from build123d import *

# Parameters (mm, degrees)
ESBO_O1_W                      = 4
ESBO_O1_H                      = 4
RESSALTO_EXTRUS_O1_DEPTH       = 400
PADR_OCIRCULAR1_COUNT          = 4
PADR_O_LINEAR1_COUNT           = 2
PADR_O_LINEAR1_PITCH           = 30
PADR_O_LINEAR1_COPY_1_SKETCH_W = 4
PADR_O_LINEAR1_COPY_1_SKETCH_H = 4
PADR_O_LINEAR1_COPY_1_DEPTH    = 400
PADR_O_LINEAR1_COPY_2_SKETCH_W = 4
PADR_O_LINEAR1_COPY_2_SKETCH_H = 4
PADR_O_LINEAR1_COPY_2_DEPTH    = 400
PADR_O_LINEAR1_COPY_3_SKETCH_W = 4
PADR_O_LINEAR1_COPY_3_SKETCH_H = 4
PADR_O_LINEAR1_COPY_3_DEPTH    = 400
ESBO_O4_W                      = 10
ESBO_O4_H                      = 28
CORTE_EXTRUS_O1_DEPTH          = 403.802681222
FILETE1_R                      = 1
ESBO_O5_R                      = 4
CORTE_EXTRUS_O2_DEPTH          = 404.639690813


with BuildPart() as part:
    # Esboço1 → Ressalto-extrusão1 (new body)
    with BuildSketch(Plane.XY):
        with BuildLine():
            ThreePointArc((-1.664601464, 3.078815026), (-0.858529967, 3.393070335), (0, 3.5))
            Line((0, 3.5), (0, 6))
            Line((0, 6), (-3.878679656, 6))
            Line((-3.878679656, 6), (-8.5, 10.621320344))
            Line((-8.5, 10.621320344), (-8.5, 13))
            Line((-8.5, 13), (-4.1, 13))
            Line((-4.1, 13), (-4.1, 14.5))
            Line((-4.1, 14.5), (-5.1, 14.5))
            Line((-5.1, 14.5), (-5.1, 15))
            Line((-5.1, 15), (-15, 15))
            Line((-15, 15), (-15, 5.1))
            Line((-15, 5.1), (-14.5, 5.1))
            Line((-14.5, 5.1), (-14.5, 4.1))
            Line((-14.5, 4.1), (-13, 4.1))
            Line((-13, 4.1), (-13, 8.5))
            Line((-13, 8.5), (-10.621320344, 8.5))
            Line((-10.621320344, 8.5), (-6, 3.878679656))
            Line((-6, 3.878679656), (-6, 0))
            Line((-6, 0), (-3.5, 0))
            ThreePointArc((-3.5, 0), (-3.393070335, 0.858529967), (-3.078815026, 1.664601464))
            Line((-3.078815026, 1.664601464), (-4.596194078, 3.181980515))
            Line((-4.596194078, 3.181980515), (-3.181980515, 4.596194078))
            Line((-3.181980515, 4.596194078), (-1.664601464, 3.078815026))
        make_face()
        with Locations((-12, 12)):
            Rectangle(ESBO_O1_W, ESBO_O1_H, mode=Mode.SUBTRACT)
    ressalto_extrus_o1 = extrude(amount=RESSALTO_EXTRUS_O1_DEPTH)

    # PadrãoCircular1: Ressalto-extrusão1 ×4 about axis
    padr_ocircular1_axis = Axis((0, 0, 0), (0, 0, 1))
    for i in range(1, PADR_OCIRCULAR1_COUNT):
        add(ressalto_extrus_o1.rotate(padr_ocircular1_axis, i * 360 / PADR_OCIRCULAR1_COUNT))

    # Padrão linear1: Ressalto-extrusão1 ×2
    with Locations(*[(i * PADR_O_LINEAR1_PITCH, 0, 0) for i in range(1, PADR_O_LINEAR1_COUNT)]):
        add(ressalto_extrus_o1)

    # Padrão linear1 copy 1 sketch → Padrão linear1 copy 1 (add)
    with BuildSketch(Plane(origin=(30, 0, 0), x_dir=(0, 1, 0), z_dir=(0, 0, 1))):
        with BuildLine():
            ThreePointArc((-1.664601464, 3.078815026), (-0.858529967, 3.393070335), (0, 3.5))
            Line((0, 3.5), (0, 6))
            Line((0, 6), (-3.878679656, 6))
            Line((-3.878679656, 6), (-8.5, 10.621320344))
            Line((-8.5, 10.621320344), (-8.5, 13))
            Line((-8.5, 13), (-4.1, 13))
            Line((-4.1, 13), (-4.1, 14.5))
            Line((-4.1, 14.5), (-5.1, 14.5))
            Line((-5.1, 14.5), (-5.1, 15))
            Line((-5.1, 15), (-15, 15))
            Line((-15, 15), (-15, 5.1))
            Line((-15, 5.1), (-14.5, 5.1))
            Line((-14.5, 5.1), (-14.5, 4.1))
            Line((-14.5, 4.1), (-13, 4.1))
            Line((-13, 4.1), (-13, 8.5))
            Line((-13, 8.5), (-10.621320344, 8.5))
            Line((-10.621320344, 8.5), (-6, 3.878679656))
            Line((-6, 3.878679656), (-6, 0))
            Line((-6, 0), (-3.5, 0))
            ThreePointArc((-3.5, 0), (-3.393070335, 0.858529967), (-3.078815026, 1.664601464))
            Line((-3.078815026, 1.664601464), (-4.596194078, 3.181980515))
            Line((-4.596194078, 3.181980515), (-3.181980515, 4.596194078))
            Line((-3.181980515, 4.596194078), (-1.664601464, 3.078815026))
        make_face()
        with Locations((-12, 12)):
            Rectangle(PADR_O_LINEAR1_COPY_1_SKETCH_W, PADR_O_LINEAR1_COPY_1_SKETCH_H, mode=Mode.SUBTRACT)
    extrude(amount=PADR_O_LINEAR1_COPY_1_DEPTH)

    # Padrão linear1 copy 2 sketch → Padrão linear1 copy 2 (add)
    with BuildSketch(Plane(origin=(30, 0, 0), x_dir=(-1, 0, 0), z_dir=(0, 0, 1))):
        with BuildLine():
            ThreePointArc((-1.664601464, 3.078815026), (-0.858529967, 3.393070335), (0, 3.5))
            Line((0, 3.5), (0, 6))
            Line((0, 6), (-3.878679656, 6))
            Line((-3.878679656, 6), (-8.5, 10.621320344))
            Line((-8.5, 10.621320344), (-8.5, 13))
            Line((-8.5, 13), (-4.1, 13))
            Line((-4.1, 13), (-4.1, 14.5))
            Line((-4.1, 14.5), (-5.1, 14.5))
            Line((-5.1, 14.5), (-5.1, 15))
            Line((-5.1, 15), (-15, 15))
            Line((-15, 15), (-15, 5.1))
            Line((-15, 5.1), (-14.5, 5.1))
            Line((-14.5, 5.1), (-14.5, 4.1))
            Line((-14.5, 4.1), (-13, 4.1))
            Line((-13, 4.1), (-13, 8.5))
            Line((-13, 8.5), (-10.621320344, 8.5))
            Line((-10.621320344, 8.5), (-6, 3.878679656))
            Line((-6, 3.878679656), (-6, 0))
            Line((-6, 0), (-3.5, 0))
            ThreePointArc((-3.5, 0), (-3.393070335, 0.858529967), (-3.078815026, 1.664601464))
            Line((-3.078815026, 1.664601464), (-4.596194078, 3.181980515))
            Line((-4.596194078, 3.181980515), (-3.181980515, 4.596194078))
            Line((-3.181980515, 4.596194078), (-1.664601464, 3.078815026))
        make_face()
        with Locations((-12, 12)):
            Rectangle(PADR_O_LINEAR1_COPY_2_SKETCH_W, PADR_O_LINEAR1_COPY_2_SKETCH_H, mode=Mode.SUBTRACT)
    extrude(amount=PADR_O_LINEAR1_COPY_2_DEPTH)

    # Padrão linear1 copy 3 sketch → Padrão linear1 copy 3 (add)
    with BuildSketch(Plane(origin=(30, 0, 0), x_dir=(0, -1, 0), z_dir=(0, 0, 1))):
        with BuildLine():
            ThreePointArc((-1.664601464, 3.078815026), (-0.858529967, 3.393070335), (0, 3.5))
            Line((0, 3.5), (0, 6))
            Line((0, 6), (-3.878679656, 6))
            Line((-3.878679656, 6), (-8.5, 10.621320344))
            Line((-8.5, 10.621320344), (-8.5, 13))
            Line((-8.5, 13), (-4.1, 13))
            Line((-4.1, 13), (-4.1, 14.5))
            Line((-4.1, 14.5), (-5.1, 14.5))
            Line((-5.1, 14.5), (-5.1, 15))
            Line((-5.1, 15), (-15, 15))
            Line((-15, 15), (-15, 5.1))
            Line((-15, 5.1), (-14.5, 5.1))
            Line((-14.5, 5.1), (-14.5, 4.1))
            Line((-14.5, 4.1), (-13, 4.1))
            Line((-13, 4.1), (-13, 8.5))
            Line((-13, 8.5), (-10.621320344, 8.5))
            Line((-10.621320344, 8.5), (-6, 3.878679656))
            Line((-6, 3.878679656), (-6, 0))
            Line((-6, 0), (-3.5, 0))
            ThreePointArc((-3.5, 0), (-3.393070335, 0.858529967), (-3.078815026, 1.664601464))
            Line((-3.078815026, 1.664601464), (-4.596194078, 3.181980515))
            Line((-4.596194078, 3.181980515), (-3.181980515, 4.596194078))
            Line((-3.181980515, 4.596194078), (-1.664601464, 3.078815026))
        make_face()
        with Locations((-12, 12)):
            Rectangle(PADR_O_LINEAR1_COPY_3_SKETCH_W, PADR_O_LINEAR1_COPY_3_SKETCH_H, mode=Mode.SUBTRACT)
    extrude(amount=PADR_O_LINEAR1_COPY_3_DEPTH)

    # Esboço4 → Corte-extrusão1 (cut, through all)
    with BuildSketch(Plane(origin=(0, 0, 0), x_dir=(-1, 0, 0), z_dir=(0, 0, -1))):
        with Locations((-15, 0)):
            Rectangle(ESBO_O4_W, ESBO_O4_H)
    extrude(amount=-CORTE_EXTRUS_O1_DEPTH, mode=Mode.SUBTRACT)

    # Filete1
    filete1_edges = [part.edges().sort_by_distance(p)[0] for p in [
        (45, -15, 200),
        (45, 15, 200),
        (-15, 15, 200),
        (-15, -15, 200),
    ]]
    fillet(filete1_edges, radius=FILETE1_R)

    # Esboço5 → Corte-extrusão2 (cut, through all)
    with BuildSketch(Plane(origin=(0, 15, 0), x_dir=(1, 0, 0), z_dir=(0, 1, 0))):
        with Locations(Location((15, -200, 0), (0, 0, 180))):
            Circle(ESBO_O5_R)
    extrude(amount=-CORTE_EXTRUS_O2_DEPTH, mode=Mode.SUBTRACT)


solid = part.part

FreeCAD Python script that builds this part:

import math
import FreeCAD as App
import Part
import Sketcher
from FreeCAD import Vector
Q = App.Units.Quantity


def edges_at(feature, points):
    """Names of the edges that pass closest to the given points."""
    edges = feature.Shape.Edges
    near = lambda p: min(range(len(edges)), key=lambda i: edges[i].distToShape(Part.Vertex(*p))[0])
    return sorted({f"Edge{near(p) + 1}" for p in points})

doc = App.newDocument("Part")
body = doc.addObject("PartDesign::Body", "Body")

# Sketch on XY plane
sketch1 = doc.addObject("Sketcher::SketchObject", "Sketch")
body.addObject(sketch1)
sketch1.AttachmentSupport = (doc.XY_Plane, [""])
sketch1.MapMode = "FlatFace"
sketch1.addGeometry([
    Part.ArcOfCircle(Part.Circle(Vector(0, 0, 0), Vector(0, 0, 1), 3.5), math.radians(90), math.radians(118.39845)),  # 0
    Part.LineSegment(Vector(0, 3.5, 0), Vector(0, 6, 0)),  # 1
    Part.LineSegment(Vector(0, 6, 0), Vector(-3.87868, 6, 0)),  # 2
    Part.LineSegment(Vector(-3.87868, 6, 0), Vector(-8.5, 10.62132, 0)),  # 3
    Part.LineSegment(Vector(-8.5, 10.62132, 0), Vector(-8.5, 13, 0)),  # 4
    Part.LineSegment(Vector(-8.5, 13, 0), Vector(-4.1, 13, 0)),  # 5
    Part.LineSegment(Vector(-4.1, 13, 0), Vector(-4.1, 14.5, 0)),  # 6
    Part.LineSegment(Vector(-4.1, 14.5, 0), Vector(-5.1, 14.5, 0)),  # 7
    Part.LineSegment(Vector(-5.1, 14.5, 0), Vector(-5.1, 15, 0)),  # 8
    Part.LineSegment(Vector(-5.1, 15, 0), Vector(-15, 15, 0)),  # 9
    Part.LineSegment(Vector(-15, 15, 0), Vector(-15, 5.1, 0)),  # 10
    Part.LineSegment(Vector(-15, 5.1, 0), Vector(-14.5, 5.1, 0)),  # 11
    Part.LineSegment(Vector(-14.5, 5.1, 0), Vector(-14.5, 4.1, 0)),  # 12
    Part.LineSegment(Vector(-14.5, 4.1, 0), Vector(-13, 4.1, 0)),  # 13
    Part.LineSegment(Vector(-13, 4.1, 0), Vector(-13, 8.5, 0)),  # 14
    Part.LineSegment(Vector(-13, 8.5, 0), Vector(-10.62132, 8.5, 0)),  # 15
    Part.LineSegment(Vector(-10.62132, 8.5, 0), Vector(-6, 3.87868, 0)),  # 16
    Part.LineSegment(Vector(-6, 3.87868, 0), Vector(-6, 0, 0)),  # 17
    Part.LineSegment(Vector(-6, 0, 0), Vector(-3.5, 0, 0)),  # 18
    Part.ArcOfCircle(Part.Circle(Vector(0, 0, 0), Vector(0, 0, 1), 3.5), math.radians(151.60155), math.radians(180)),  # 19
    Part.LineSegment(Vector(-3.078815, 1.664601, 0), Vector(-4.596194, 3.181981, 0)),  # 20
    Part.LineSegment(Vector(-4.596194, 3.181981, 0), Vector(-3.181981, 4.596194, 0)),  # 21
    Part.LineSegment(Vector(-3.181981, 4.596194, 0), Vector(-1.664601, 3.078815, 0)),  # 22
    Part.LineSegment(Vector(-10, 10, 0), Vector(-14, 10, 0)),  # 23
    Part.LineSegment(Vector(-14, 10, 0), Vector(-14, 14, 0)),  # 24
    Part.LineSegment(Vector(-14, 14, 0), Vector(-10, 14, 0)),  # 25
    Part.LineSegment(Vector(-10, 14, 0), Vector(-10, 10, 0)),  # 26
], False)
sketch1.addConstraint([
    Sketcher.Constraint("Coincident", 0, 1, 1, 1),
    Sketcher.Constraint("Coincident", 1, 2, 2, 1),
    Sketcher.Constraint("Coincident", 2, 2, 3, 1),
    Sketcher.Constraint("Coincident", 3, 2, 4, 1),
    Sketcher.Constraint("Coincident", 4, 2, 5, 1),
    Sketcher.Constraint("Coincident", 5, 2, 6, 1),
    Sketcher.Constraint("Coincident", 6, 2, 7, 1),
    Sketcher.Constraint("Coincident", 7, 2, 8, 1),
    Sketcher.Constraint("Coincident", 8, 2, 9, 1),
    Sketcher.Constraint("Coincident", 9, 2, 10, 1),
    Sketcher.Constraint("Coincident", 10, 2, 11, 1),
    Sketcher.Constraint("Coincident", 11, 2, 12, 1),
    Sketcher.Constraint("Coincident", 12, 2, 13, 1),
    Sketcher.Constraint("Coincident", 13, 2, 14, 1),
    Sketcher.Constraint("Coincident", 14, 2, 15, 1),
    Sketcher.Constraint("Coincident", 15, 2, 16, 1),
    Sketcher.Constraint("Coincident", 16, 2, 17, 1),
    Sketcher.Constraint("Coincident", 17, 2, 18, 1),
    Sketcher.Constraint("Coincident", 18, 2, 19, 2),
    Sketcher.Constraint("Coincident", 19, 1, 20, 1),
    Sketcher.Constraint("Coincident", 20, 2, 21, 1),
    Sketcher.Constraint("Coincident", 21, 2, 22, 1),
    Sketcher.Constraint("Coincident", 22, 2, 0, 2),
    Sketcher.Constraint("Coincident", 23, 2, 24, 1),
    Sketcher.Constraint("Coincident", 24, 2, 25, 1),
    Sketcher.Constraint("Coincident", 25, 2, 26, 1),
    Sketcher.Constraint("Coincident", 26, 2, 23, 1),
    Sketcher.Constraint("Vertical", 1),
    Sketcher.Constraint("Horizontal", 2),
    Sketcher.Constraint("Vertical", 4),
    Sketcher.Constraint("Horizontal", 5),
    Sketcher.Constraint("Vertical", 6),
    Sketcher.Constraint("Horizontal", 7),
    Sketcher.Constraint("Vertical", 8),
    Sketcher.Constraint("Horizontal", 9),
    Sketcher.Constraint("Vertical", 10),
    Sketcher.Constraint("Horizontal", 11),
    Sketcher.Constraint("Vertical", 12),
    Sketcher.Constraint("Horizontal", 13),
    Sketcher.Constraint("Vertical", 14),
    Sketcher.Constraint("Horizontal", 15),
    Sketcher.Constraint("Vertical", 17),
    Sketcher.Constraint("Horizontal", 18),
    Sketcher.Constraint("Horizontal", 23),
    Sketcher.Constraint("Vertical", 24),
    Sketcher.Constraint("Horizontal", 25),
    Sketcher.Constraint("Vertical", 26),
    Sketcher.Constraint("Coincident", 0, 3, -1, 1),
    Sketcher.Constraint("Coincident", 19, 3, -1, 1),
    Sketcher.Constraint("Equal", 0, 19),
    Sketcher.Constraint("PointOnObject", 0, 1, -2),
    Sketcher.Constraint("PointOnObject", 17, 2, -1),
    Sketcher.Constraint("Parallel", 3, 16),
    Sketcher.Constraint("Parallel", 16, 20),
    Sketcher.Constraint("Perpendicular", 20, 21),
    Sketcher.Constraint("Perpendicular", 21, 22),
    Sketcher.Constraint("Equal", 18, 1),
    Sketcher.Constraint("Equal", 15, 4),
    Sketcher.Constraint("Equal", 13, 6),
    Sketcher.Constraint("Equal", 11, 8),
    Sketcher.Constraint("Equal", 9, 10),
    Sketcher.Constraint("Equal", 7, 12),
    Sketcher.Constraint("Equal", 5, 14),
    Sketcher.Constraint("Equal", 2, 17),
    Sketcher.Constraint("Equal", 25, 24),
    Sketcher.Constraint("Equal", 20, 22),
    Sketcher.Constraint("Radius", 0, Q("3.5 mm")),
    Sketcher.Constraint("DistanceX", 7, 2, 7, 1, Q("1 mm")),
    Sketcher.Constraint("DistanceX", 23, 2, 23, 1, Q("4 mm")),
    Sketcher.Constraint("Angle", 3, Q("135 deg")),
    Sketcher.Constraint("Distance", 21, Q("2 mm")),
    Sketcher.Constraint("DistanceX", 5, 1, 5, 2, Q("4.4 mm")),
    Sketcher.Constraint("DistanceX", 9, 2, 9, 1, Q("9.9 mm")),
    Sketcher.Constraint("DistanceX", 11, 1, 11, 2, Q("0.5 mm")),
    Sketcher.Constraint("DistanceX", 13, 1, 13, 2, Q("1.5 mm")),
    Sketcher.Constraint("DistanceX", 18, 1, 18, 2, Q("2.5 mm")),
    Sketcher.Constraint("DistanceY", -1, 1, 4, 2, Q("13 mm")),
    Sketcher.Constraint("DistanceX", 23, 2, -1, 1, Q("14 mm")),
    Sketcher.Constraint("DistanceY", -1, 1, 23, 2, Q("10 mm")),
    Sketcher.Constraint("Distance", 20, Q("2.145898 mm")),
    Sketcher.Constraint("DistanceX", 2, 2, 2, 1, Q("3.87868 mm")),
])
pad1 = doc.addObject("PartDesign::Pad", "Pad")
body.addObject(pad1)
pad1.Profile = sketch1
pad1.Length = 400
doc.recompute()

polarpattern = doc.addObject("PartDesign::PolarPattern", "PolarPattern")
body.addObject(polarpattern)
polarpattern.Originals = [pad1]
polarpattern.Axis = (doc.Z_Axis, [""])
polarpattern.Angle = 360
polarpattern.Occurrences = 4
body.Tip = polarpattern
doc.recompute()

linearpattern = doc.addObject("PartDesign::LinearPattern", "LinearPattern")
body.addObject(linearpattern)
linearpattern.Originals = [pad1]
linearpattern.Direction = (doc.X_Axis, [""])
linearpattern.Mode = "offset"
linearpattern.Offset = 30
linearpattern.Occurrences = 2
body.Tip = linearpattern

# Sketch on XY plane
sketch2 = doc.addObject("Sketcher::SketchObject", "Sketch001")
body.addObject(sketch2)
sketch2.AttachmentSupport = (doc.XY_Plane, [""])
sketch2.MapMode = "FlatFace"
sketch2.addGeometry([
    Part.ArcOfCircle(Part.Circle(Vector(30, 0, 0), Vector(0, 0, 1), 3.5), math.radians(180), math.radians(208.39845)),  # 0
    Part.LineSegment(Vector(26.5, 0, 0), Vector(24, 0, 0)),  # 1
    Part.LineSegment(Vector(24, 0, 0), Vector(24, -3.87868, 0)),  # 2
    Part.LineSegment(Vector(24, -3.87868, 0), Vector(19.37868, -8.5, 0)),  # 3
    Part.LineSegment(Vector(19.37868, -8.5, 0), Vector(17, -8.5, 0)),  # 4
    Part.LineSegment(Vector(17, -8.5, 0), Vector(17, -4.1, 0)),  # 5
    Part.LineSegment(Vector(17, -4.1, 0), Vector(15.5, -4.1, 0)),  # 6
    Part.LineSegment(Vector(15.5, -4.1, 0), Vector(15.5, -5.1, 0)),  # 7
    Part.LineSegment(Vector(15.5, -5.1, 0), Vector(15, -5.1, 0)),  # 8
    Part.LineSegment(Vector(15, -5.1, 0), Vector(15, -15, 0)),  # 9
    Part.LineSegment(Vector(15, -15, 0), Vector(24.9, -15, 0)),  # 10
    Part.LineSegment(Vector(24.9, -15, 0), Vector(24.9, -14.5, 0)),  # 11
    Part.LineSegment(Vector(24.9, -14.5, 0), Vector(25.9, -14.5, 0)),  # 12
    Part.LineSegment(Vector(25.9, -14.5, 0), Vector(25.9, -13, 0)),  # 13
    Part.LineSegment(Vector(25.9, -13, 0), Vector(21.5, -13, 0)),  # 14
    Part.LineSegment(Vector(21.5, -13, 0), Vector(21.5, -10.62132, 0)),  # 15
    Part.LineSegment(Vector(21.5, -10.62132, 0), Vector(26.12132, -6, 0)),  # 16
    Part.LineSegment(Vector(26.12132, -6, 0), Vector(30, -6, 0)),  # 17
    Part.LineSegment(Vector(30, -6, 0), Vector(30, -3.5, 0)),  # 18
    Part.ArcOfCircle(Part.Circle(Vector(30, 0, 0), Vector(0, 0, 1), 3.5), math.radians(-118.39845), math.radians(-90)),  # 19
    Part.LineSegment(Vector(28.335399, -3.078815, 0), Vector(26.818019, -4.596194, 0)),  # 20
    Part.LineSegment(Vector(26.818019, -4.596194, 0), Vector(25.403806, -3.181981, 0)),  # 21
    Part.LineSegment(Vector(25.403806, -3.181981, 0), Vector(26.921185, -1.664601, 0)),  # 22
    Part.LineSegment(Vector(20, -10, 0), Vector(20, -14, 0)),  # 23
    Part.LineSegment(Vector(20, -14, 0), Vector(16, -14, 0)),  # 24
    Part.LineSegment(Vector(16, -14, 0), Vector(16, -10, 0)),  # 25
    Part.LineSegment(Vector(16, -10, 0), Vector(20, -10, 0)),  # 26
], False)
sketch2.addConstraint([
    Sketcher.Constraint("Coincident", 0, 1, 1, 1),
    Sketcher.Constraint("Coincident", 1, 2, 2, 1),
    Sketcher.Constraint("Coincident", 2, 2, 3, 1),
    Sketcher.Constraint("Coincident", 3, 2, 4, 1),
    Sketcher.Constraint("Coincident", 4, 2, 5, 1),
    Sketcher.Constraint("Coincident", 5, 2, 6, 1),
    Sketcher.Constraint("Coincident", 6, 2, 7, 1),
    Sketcher.Constraint("Coincident", 7, 2, 8, 1),
    Sketcher.Constraint("Coincident", 8, 2, 9, 1),
    Sketcher.Constraint("Coincident", 9, 2, 10, 1),
    Sketcher.Constraint("Coincident", 10, 2, 11, 1),
    Sketcher.Constraint("Coincident", 11, 2, 12, 1),
    Sketcher.Constraint("Coincident", 12, 2, 13, 1),
    Sketcher.Constraint("Coincident", 13, 2, 14, 1),
    Sketcher.Constraint("Coincident", 14, 2, 15, 1),
    Sketcher.Constraint("Coincident", 15, 2, 16, 1),
    Sketcher.Constraint("Coincident", 16, 2, 17, 1),
    Sketcher.Constraint("Coincident", 17, 2, 18, 1),
    Sketcher.Constraint("Coincident", 18, 2, 19, 2),
    Sketcher.Constraint("Coincident", 19, 1, 20, 1),
    Sketcher.Constraint("Coincident", 20, 2, 21, 1),
    Sketcher.Constraint("Coincident", 21, 2, 22, 1),
    Sketcher.Constraint("Coincident", 22, 2, 0, 2),
    Sketcher.Constraint("Coincident", 23, 2, 24, 1),
    Sketcher.Constraint("Coincident", 24, 2, 25, 1),
    Sketcher.Constraint("Coincident", 25, 2, 26, 1),
    Sketcher.Constraint("Coincident", 26, 2, 23, 1),
    Sketcher.Constraint("Horizontal", 1),
    Sketcher.Constraint("Vertical", 2),
    Sketcher.Constraint("Horizontal", 4),
    Sketcher.Constraint("Vertical", 5),
    Sketcher.Constraint("Horizontal", 6),
    Sketcher.Constraint("Vertical", 7),
    Sketcher.Constraint("Horizontal", 8),
    Sketcher.Constraint("Vertical", 9),
    Sketcher.Constraint("Horizontal", 10),
    Sketcher.Constraint("Vertical", 11),
    Sketcher.Constraint("Horizontal", 12),
    Sketcher.Constraint("Vertical", 13),
    Sketcher.Constraint("Horizontal", 14),
    Sketcher.Constraint("Vertical", 15),
    Sketcher.Constraint("Horizontal", 17),
    Sketcher.Constraint("Vertical", 18),
    Sketcher.Constraint("Vertical", 23),
    Sketcher.Constraint("Horizontal", 24),
    Sketcher.Constraint("Vertical", 25),
    Sketcher.Constraint("Horizontal", 26),
    Sketcher.Constraint("Coincident", 19, 3, 0, 3),
    Sketcher.Constraint("Equal", 0, 19),
    Sketcher.Constraint("PointOnObject", 0, 3, -1),
    Sketcher.Constraint("PointOnObject", 0, 1, -1),
    Sketcher.Constraint("Parallel", 3, 16),
    Sketcher.Constraint("Parallel", 16, 20),
    Sketcher.Constraint("Perpendicular", 20, 21),
    Sketcher.Constraint("Perpendicular", 21, 22),
    Sketcher.Constraint("Vertical", 19, 3, 17, 2),
    Sketcher.Constraint("Equal", 17, 2),
    Sketcher.Constraint("Equal", 14, 5),
    Sketcher.Constraint("Equal", 12, 7),
    Sketcher.Constraint("Equal", 10, 9),
    Sketcher.Constraint("Equal", 8, 11),
    Sketcher.Constraint("Equal", 6, 13),
    Sketcher.Constraint("Equal", 4, 15),
    Sketcher.Constraint("Equal", 1, 18),
    Sketcher.Constraint("Equal", 26, 23),
    Sketcher.Constraint("Equal", 20, 22),
    Sketcher.Constraint("Radius", 0, Q("3.5 mm")),
    Sketcher.Constraint("DistanceX", 12, 1, 12, 2, Q("1 mm")),
    Sketcher.Constraint("DistanceX", 24, 2, 24, 1, Q("4 mm")),
    Sketcher.Constraint("Angle", 3, Q("-135 deg")),
    Sketcher.Constraint("Distance", 21, Q("2 mm")),
    Sketcher.Constraint("DistanceX", 1, 2, 1, 1, Q("2.5 mm")),
    Sketcher.Constraint("DistanceX", 6, 2, 6, 1, Q("1.5 mm")),
    Sketcher.Constraint("DistanceX", 8, 2, 8, 1, Q("0.5 mm")),
    Sketcher.Constraint("DistanceX", 10, 1, 10, 2, Q("9.9 mm")),
    Sketcher.Constraint("DistanceX", 14, 2, 14, 1, Q("4.4 mm")),
    Sketcher.Constraint("DistanceX", -1, 1, 0, 3, Q("30 mm")),
    Sketcher.Constraint("DistanceX", -1, 1, 4, 2, Q("17 mm")),
    Sketcher.Constraint("DistanceX", -1, 1, 23, 2, Q("20 mm")),
    Sketcher.Constraint("DistanceY", 23, 2, -1, 1, Q("14 mm")),
    Sketcher.Constraint("Distance", 20, Q("2.145898 mm")),
    Sketcher.Constraint("DistanceX", 4, 2, 4, 1, Q("2.37868 mm")),
])
pad2 = doc.addObject("PartDesign::Pad", "Pad001")
body.addObject(pad2)
pad2.Profile = sketch2
pad2.Length = 400

# Sketch on XY plane
sketch3 = doc.addObject("Sketcher::SketchObject", "Sketch002")
body.addObject(sketch3)
sketch3.AttachmentSupport = (doc.XY_Plane, [""])
sketch3.MapMode = "FlatFace"
sketch3.addGeometry([
    Part.ArcOfCircle(Part.Circle(Vector(30, 0, 0), Vector(0, 0, 1), 3.5), math.radians(-90), math.radians(-61.60155)),  # 0
    Part.LineSegment(Vector(30, -3.5, 0), Vector(30, -6, 0)),  # 1
    Part.LineSegment(Vector(30, -6, 0), Vector(33.87868, -6, 0)),  # 2
    Part.LineSegment(Vector(33.87868, -6, 0), Vector(38.5, -10.62132, 0)),  # 3
    Part.LineSegment(Vector(38.5, -10.62132, 0), Vector(38.5, -13, 0)),  # 4
    Part.LineSegment(Vector(38.5, -13, 0), Vector(34.1, -13, 0)),  # 5
    Part.LineSegment(Vector(34.1, -13, 0), Vector(34.1, -14.5, 0)),  # 6
    Part.LineSegment(Vector(34.1, -14.5, 0), Vector(35.1, -14.5, 0)),  # 7
    Part.LineSegment(Vector(35.1, -14.5, 0), Vector(35.1, -15, 0)),  # 8
    Part.LineSegment(Vector(35.1, -15, 0), Vector(45, -15, 0)),  # 9
    Part.LineSegment(Vector(45, -15, 0), Vector(45, -5.1, 0)),  # 10
    Part.LineSegment(Vector(45, -5.1, 0), Vector(44.5, -5.1, 0)),  # 11
    Part.LineSegment(Vector(44.5, -5.1, 0), Vector(44.5, -4.1, 0)),  # 12
    Part.LineSegment(Vector(44.5, -4.1, 0), Vector(43, -4.1, 0)),  # 13
    Part.LineSegment(Vector(43, -4.1, 0), Vector(43, -8.5, 0)),  # 14
    Part.LineSegment(Vector(43, -8.5, 0), Vector(40.62132, -8.5, 0)),  # 15
    Part.LineSegment(Vector(40.62132, -8.5, 0), Vector(36, -3.87868, 0)),  # 16
    Part.LineSegment(Vector(36, -3.87868, 0), Vector(36, 0, 0)),  # 17
    Part.LineSegment(Vector(36, 0, 0), Vector(33.5, 0, 0)),  # 18
    Part.ArcOfCircle(Part.Circle(Vector(30, 0, 0), Vector(0, 0, 1), 3.5), math.radians(-28.39845), math.radians(0)),  # 19
    Part.LineSegment(Vector(33.078815, -1.664601, 0), Vector(34.596194, -3.181981, 0)),  # 20
    Part.LineSegment(Vector(34.596194, -3.181981, 0), Vector(33.181981, -4.596194, 0)),  # 21
    Part.LineSegment(Vector(33.181981, -4.596194, 0), Vector(31.664601, -3.078815, 0)),  # 22
    Part.LineSegment(Vector(40, -10, 0), Vector(44, -10, 0)),  # 23
    Part.LineSegment(Vector(44, -10, 0), Vector(44, -14, 0)),  # 24
    Part.LineSegment(Vector(44, -14, 0), Vector(40, -14, 0)),  # 25
    Part.LineSegment(Vector(40, -14, 0), Vector(40, -10, 0)),  # 26
], False)
sketch3.addConstraint([
    Sketcher.Constraint("Coincident", 0, 1, 1, 1),
    Sketcher.Constraint("Coincident", 1, 2, 2, 1),
    Sketcher.Constraint("Coincident", 2, 2, 3, 1),
    Sketcher.Constraint("Coincident", 3, 2, 4, 1),
    Sketcher.Constraint("Coincident", 4, 2, 5, 1),
    Sketcher.Constraint("Coincident", 5, 2, 6, 1),
    Sketcher.Constraint("Coincident", 6, 2, 7, 1),
    Sketcher.Constraint("Coincident", 7, 2, 8, 1),
    Sketcher.Constraint("Coincident", 8, 2, 9, 1),
    Sketcher.Constraint("Coincident", 9, 2, 10, 1),
    Sketcher.Constraint("Coincident", 10, 2, 11, 1),
    Sketcher.Constraint("Coincident", 11, 2, 12, 1),
    Sketcher.Constraint("Coincident", 12, 2, 13, 1),
    Sketcher.Constraint("Coincident", 13, 2, 14, 1),
    Sketcher.Constraint("Coincident", 14, 2, 15, 1),
    Sketcher.Constraint("Coincident", 15, 2, 16, 1),
    Sketcher.Constraint("Coincident", 16, 2, 17, 1),
    Sketcher.Constraint("Coincident", 17, 2, 18, 1),
    Sketcher.Constraint("Coincident", 18, 2, 19, 2),
    Sketcher.Constraint("Coincident", 19, 1, 20, 1),
    Sketcher.Constraint("Coincident", 20, 2, 21, 1),
    Sketcher.Constraint("Coincident", 21, 2, 22, 1),
    Sketcher.Constraint("Coincident", 22, 2, 0, 2),
    Sketcher.Constraint("Coincident", 23, 2, 24, 1),
    Sketcher.Constraint("Coincident", 24, 2, 25, 1),
    Sketcher.Constraint("Coincident", 25, 2, 26, 1),
    Sketcher.Constraint("Coincident", 26, 2, 23, 1),
    Sketcher.Constraint("Vertical", 1),
    Sketcher.Constraint("Horizontal", 2),
    Sketcher.Constraint("Vertical", 4),
    Sketcher.Constraint("Horizontal", 5),
    Sketcher.Constraint("Vertical", 6),
    Sketcher.Constraint("Horizontal", 7),
    Sketcher.Constraint("Vertical", 8),
    Sketcher.Constraint("Horizontal", 9),
    Sketcher.Constraint("Vertical", 10),
    Sketcher.Constraint("Horizontal", 11),
    Sketcher.Constraint("Vertical", 12),
    Sketcher.Constraint("Horizontal", 13),
    Sketcher.Constraint("Vertical", 14),
    Sketcher.Constraint("Horizontal", 15),
    Sketcher.Constraint("Vertical", 17),
    Sketcher.Constraint("Horizontal", 18),
    Sketcher.Constraint("Horizontal", 23),
    Sketcher.Constraint("Vertical", 24),
    Sketcher.Constraint("Horizontal", 25),
    Sketcher.Constraint("Vertical", 26),
    Sketcher.Constraint("Coincident", 19, 3, 0, 3),
    Sketcher.Constraint("Equal", 0, 19),
    Sketcher.Constraint("PointOnObject", 0, 3, -1),
    Sketcher.Constraint("PointOnObject", 17, 2, -1),
    Sketcher.Constraint("Parallel", 3, 16),
    Sketcher.Constraint("Parallel", 16, 20),
    Sketcher.Constraint("Perpendicular", 20, 21),
    Sketcher.Constraint("Perpendicular", 21, 22),
    Sketcher.Constraint("Vertical", 19, 3, 0, 1),
    Sketcher.Constraint("Equal", 18, 1),
    Sketcher.Constraint("Equal", 15, 4),
    Sketcher.Constraint("Equal", 13, 6),
    Sketcher.Constraint("Equal", 11, 8),
    Sketcher.Constraint("Equal", 9, 10),
    Sketcher.Constraint("Equal", 7, 12),
    Sketcher.Constraint("Equal", 5, 14),
    Sketcher.Constraint("Equal", 2, 17),
    Sketcher.Constraint("Equal", 25, 24),
    Sketcher.Constraint("Equal", 20, 22),
    Sketcher.Constraint("Radius", 0, Q("3.5 mm")),
    Sketcher.Constraint("DistanceX", 7, 1, 7, 2, Q("1 mm")),
    Sketcher.Constraint("DistanceX", 23, 1, 23, 2, Q("4 mm")),
    Sketcher.Constraint("Angle", 3, Q("-45 deg")),
    Sketcher.Constraint("Distance", 21, Q("2 mm")),
    Sketcher.Constraint("DistanceX", 5, 2, 5, 1, Q("4.4 mm")),
    Sketcher.Constraint("DistanceX", 9, 1, 9, 2, Q("9.9 mm")),
    Sketcher.Constraint("DistanceX", 11, 2, 11, 1, Q("0.5 mm")),
    Sketcher.Constraint("DistanceX", 13, 2, 13, 1, Q("1.5 mm")),
    Sketcher.Constraint("DistanceX", 18, 2, 18, 1, Q("2.5 mm")),
    Sketcher.Constraint("DistanceX", -1, 1, 0, 3, Q("30 mm")),
    Sketcher.Constraint("DistanceY", 4, 2, -1, 1, Q("13 mm")),
    Sketcher.Constraint("DistanceX", -1, 1, 23, 2, Q("44 mm")),
    Sketcher.Constraint("DistanceY", 23, 2, -1, 1, Q("10 mm")),
    Sketcher.Constraint("Distance", 20, Q("2.145898 mm")),
    Sketcher.Constraint("DistanceX", 2, 1, 2, 2, Q("3.87868 mm")),
])
pad3 = doc.addObject("PartDesign::Pad", "Pad002")
body.addObject(pad3)
pad3.Profile = sketch3
pad3.Length = 400

# Sketch on XY plane
sketch4 = doc.addObject("Sketcher::SketchObject", "Sketch003")
body.addObject(sketch4)
sketch4.AttachmentSupport = (doc.XY_Plane, [""])
sketch4.MapMode = "FlatFace"
sketch4.addGeometry([
    Part.ArcOfCircle(Part.Circle(Vector(30, 0, 0), Vector(0, 0, 1), 3.5), math.radians(0), math.radians(28.39845)),  # 0
    Part.LineSegment(Vector(33.5, 0, 0), Vector(36, 0, 0)),  # 1
    Part.LineSegment(Vector(36, 0, 0), Vector(36, 3.87868, 0)),  # 2
    Part.LineSegment(Vector(36, 3.87868, 0), Vector(40.62132, 8.5, 0)),  # 3
    Part.LineSegment(Vector(40.62132, 8.5, 0), Vector(43, 8.5, 0)),  # 4
    Part.LineSegment(Vector(43, 8.5, 0), Vector(43, 4.1, 0)),  # 5
    Part.LineSegment(Vector(43, 4.1, 0), Vector(44.5, 4.1, 0)),  # 6
    Part.LineSegment(Vector(44.5, 4.1, 0), Vector(44.5, 5.1, 0)),  # 7
    Part.LineSegment(Vector(44.5, 5.1, 0), Vector(45, 5.1, 0)),  # 8
    Part.LineSegment(Vector(45, 5.1, 0), Vector(45, 15, 0)),  # 9
    Part.LineSegment(Vector(45, 15, 0), Vector(35.1, 15, 0)),  # 10
    Part.LineSegment(Vector(35.1, 15, 0), Vector(35.1, 14.5, 0)),  # 11
    Part.LineSegment(Vector(35.1, 14.5, 0), Vector(34.1, 14.5, 0)),  # 12
    Part.LineSegment(Vector(34.1, 14.5, 0), Vector(34.1, 13, 0)),  # 13
    Part.LineSegment(Vector(34.1, 13, 0), Vector(38.5, 13, 0)),  # 14
    Part.LineSegment(Vector(38.5, 13, 0), Vector(38.5, 10.62132, 0)),  # 15
    Part.LineSegment(Vector(38.5, 10.62132, 0), Vector(33.87868, 6, 0)),  # 16
    Part.LineSegment(Vector(33.87868, 6, 0), Vector(30, 6, 0)),  # 17
    Part.LineSegment(Vector(30, 6, 0), Vector(30, 3.5, 0)),  # 18
    Part.ArcOfCircle(Part.Circle(Vector(30, 0, 0), Vector(0, 0, 1), 3.5), math.radians(61.60155), math.radians(90)),  # 19
    Part.LineSegment(Vector(31.664601, 3.078815, 0), Vector(33.181981, 4.596194, 0)),  # 20
    Part.LineSegment(Vector(33.181981, 4.596194, 0), Vector(34.596194, 3.181981, 0)),  # 21
    Part.LineSegment(Vector(34.596194, 3.181981, 0), Vector(33.078815, 1.664601, 0)),  # 22
    Part.LineSegment(Vector(40, 10, 0), Vector(40, 14, 0)),  # 23
    Part.LineSegment(Vector(40, 14, 0), Vector(44, 14, 0)),  # 24
    Part.LineSegment(Vector(44, 14, 0), Vector(44, 10, 0)),  # 25
    Part.LineSegment(Vector(44, 10, 0), Vector(40, 10, 0)),  # 26
], False)
sketch4.addConstraint([
    Sketcher.Constraint("Coincident", 0, 1, 1, 1),
    Sketcher.Constraint("Coincident", 1, 2, 2, 1),
    Sketcher.Constraint("Coincident", 2, 2, 3, 1),
    Sketcher.Constraint("Coincident", 3, 2, 4, 1),
    Sketcher.Constraint("Coincident", 4, 2, 5, 1),
    Sketcher.Constraint("Coincident", 5, 2, 6, 1),
    Sketcher.Constraint("Coincident", 6, 2, 7, 1),
    Sketcher.Constraint("Coincident", 7, 2, 8, 1),
    Sketcher.Constraint("Coincident", 8, 2, 9, 1),
    Sketcher.Constraint("Coincident", 9, 2, 10, 1),
    Sketcher.Constraint("Coincident", 10, 2, 11, 1),
    Sketcher.Constraint("Coincident", 11, 2, 12, 1),
    Sketcher.Constraint("Coincident", 12, 2, 13, 1),
    Sketcher.Constraint("Coincident", 13, 2, 14, 1),
    Sketcher.Constraint("Coincident", 14, 2, 15, 1),
    Sketcher.Constraint("Coincident", 15, 2, 16, 1),
    Sketcher.Constraint("Coincident", 16, 2, 17, 1),
    Sketcher.Constraint("Coincident", 17, 2, 18, 1),
    Sketcher.Constraint("Coincident", 18, 2, 19, 2),
    Sketcher.Constraint("Coincident", 19, 1, 20, 1),
    Sketcher.Constraint("Coincident", 20, 2, 21, 1),
    Sketcher.Constraint("Coincident", 21, 2, 22, 1),
    Sketcher.Constraint("Coincident", 22, 2, 0, 2),
    Sketcher.Constraint("Coincident", 23, 2, 24, 1),
    Sketcher.Constraint("Coincident", 24, 2, 25, 1),
    Sketcher.Constraint("Coincident", 25, 2, 26, 1),
    Sketcher.Constraint("Coincident", 26, 2, 23, 1),
    Sketcher.Constraint("Horizontal", 1),
    Sketcher.Constraint("Vertical", 2),
    Sketcher.Constraint("Horizontal", 4),
    Sketcher.Constraint("Vertical", 5),
    Sketcher.Constraint("Horizontal", 6),
    Sketcher.Constraint("Vertical", 7),
    Sketcher.Constraint("Horizontal", 8),
    Sketcher.Constraint("Vertical", 9),
    Sketcher.Constraint("Horizontal", 10),
    Sketcher.Constraint("Vertical", 11),
    Sketcher.Constraint("Horizontal", 12),
    Sketcher.Constraint("Vertical", 13),
    Sketcher.Constraint("Horizontal", 14),
    Sketcher.Constraint("Vertical", 15),
    Sketcher.Constraint("Horizontal", 17),
    Sketcher.Constraint("Vertical", 18),
    Sketcher.Constraint("Vertical", 23),
    Sketcher.Constraint("Horizontal", 24),
    Sketcher.Constraint("Vertical", 25),
    Sketcher.Constraint("Horizontal", 26),
    Sketcher.Constraint("Coincident", 19, 3, 0, 3),
    Sketcher.Constraint("Equal", 0, 19),
    Sketcher.Constraint("PointOnObject", 0, 3, -1),
    Sketcher.Constraint("PointOnObject", 0, 1, -1),
    Sketcher.Constraint("Parallel", 3, 16),
    Sketcher.Constraint("Parallel", 16, 20),
    Sketcher.Constraint("Perpendicular", 20, 21),
    Sketcher.Constraint("Perpendicular", 21, 22),
    Sketcher.Constraint("Vertical", 19, 3, 17, 2),
    Sketcher.Constraint("Equal", 17, 2),
    Sketcher.Constraint("Equal", 14, 5),
    Sketcher.Constraint("Equal", 12, 7),
    Sketcher.Constraint("Equal", 10, 9),
    Sketcher.Constraint("Equal", 8, 11),
    Sketcher.Constraint("Equal", 6, 13),
    Sketcher.Constraint("Equal", 4, 15),
    Sketcher.Constraint("Equal", 1, 18),
    Sketcher.Constraint("Equal", 26, 23),
    Sketcher.Constraint("Equal", 20, 22),
    Sketcher.Constraint("Radius", 0, Q("3.5 mm")),
    Sketcher.Constraint("DistanceX", 12, 2, 12, 1, Q("1 mm")),
    Sketcher.Constraint("DistanceX", 24, 1, 24, 2, Q("4 mm")),
    Sketcher.Constraint("Angle", 3, Q("45 deg")),
    Sketcher.Constraint("Distance", 21, Q("2 mm")),
    Sketcher.Constraint("DistanceX", 1, 1, 1, 2, Q("2.5 mm")),
    Sketcher.Constraint("DistanceX", 6, 1, 6, 2, Q("1.5 mm")),
    Sketcher.Constraint("DistanceX", 8, 1, 8, 2, Q("0.5 mm")),
    Sketcher.Constraint("DistanceX", 10, 2, 10, 1, Q("9.9 mm")),
    Sketcher.Constraint("DistanceX", 14, 1, 14, 2, Q("4.4 mm")),
    Sketcher.Constraint("DistanceX", -1, 1, 0, 3, Q("30 mm")),
    Sketcher.Constraint("DistanceX", -1, 1, 4, 2, Q("43 mm")),
    Sketcher.Constraint("DistanceX", -1, 1, 23, 2, Q("40 mm")),
    Sketcher.Constraint("DistanceY", -1, 1, 23, 2, Q("14 mm")),
    Sketcher.Constraint("Distance", 20, Q("2.145898 mm")),
    Sketcher.Constraint("DistanceX", 4, 1, 4, 2, Q("2.37868 mm")),
])
pad4 = doc.addObject("PartDesign::Pad", "Pad003")
body.addObject(pad4)
pad4.Profile = sketch4
pad4.Length = 400

# Sketch on XY plane
sketch5 = doc.addObject("Sketcher::SketchObject", "Sketch004")
body.addObject(sketch5)
sketch5.AttachmentSupport = (doc.XY_Plane, [""])
sketch5.MapMode = "FlatFace"
sketch5.addGeometry([
    Part.LineSegment(Vector(20, 14, 0), Vector(20, -14, 0)),
    Part.LineSegment(Vector(20, -14, 0), Vector(10, -14, 0)),
    Part.LineSegment(Vector(10, -14, 0), Vector(10, 14, 0)),
    Part.LineSegment(Vector(10, 14, 0), Vector(20, 14, 0)),
], False)
sketch5.addConstraint([
    Sketcher.Constraint("Coincident", 0, 2, 1, 1),
    Sketcher.Constraint("Coincident", 1, 2, 2, 1),
    Sketcher.Constraint("Coincident", 2, 2, 3, 1),
    Sketcher.Constraint("Coincident", 3, 2, 0, 1),
    Sketcher.Constraint("Vertical", 0),
    Sketcher.Constraint("Horizontal", 1),
    Sketcher.Constraint("Vertical", 2),
    Sketcher.Constraint("Horizontal", 3),
    Sketcher.Constraint("DistanceX", 1, 2, 1, 1, Q("10 mm")),
    Sketcher.Constraint("DistanceY", 0, 2, 0, 1, Q("28 mm")),
    Sketcher.Constraint("DistanceX", -1, 1, 0, 2, Q("20 mm")),
    Sketcher.Constraint("DistanceY", 0, 2, -1, 1, Q("14 mm")),
])
pocket1 = doc.addObject("PartDesign::Pocket", "Pocket")
body.addObject(pocket1)
pocket1.Profile = sketch5
pocket1.Type = "ThroughAll"
pocket1.Reversed = True
doc.recompute()

fillet = doc.addObject("PartDesign::Fillet", "Fillet")
body.addObject(fillet)
fillet.Base = (pocket1, edges_at(pocket1, [
    (45, -15, 200),
    (45, 15, 200),
    (-15, 15, 200),
    (-15, -15, 200),
]))
fillet.Radius = 1

# Sketch on XZ plane
sketch6 = doc.addObject("Sketcher::SketchObject", "Sketch005")
body.addObject(sketch6)
sketch6.AttachmentSupport = (doc.XZ_Plane, [""])
sketch6.MapMode = "FlatFace"
sketch6.AttachmentOffset = App.Placement(Vector(0, 0, -15), App.Rotation())
sketch6.addGeometry(Part.Circle(Vector(15, 200, 0), Vector(0, 0, 1), 4), False)
sketch6.addConstraint([
    Sketcher.Constraint("Diameter", 0, Q("8 mm")),
    Sketcher.Constraint("DistanceX", -1, 1, 0, 3, Q("15 mm")),
    Sketcher.Constraint("DistanceY", -1, 1, 0, 3, Q("200 mm")),
])
pocket2 = doc.addObject("PartDesign::Pocket", "Pocket001")
body.addObject(pocket2)
pocket2.Profile = sketch6
pocket2.Type = "ThroughAll"
pocket2.Reversed = True

doc.recompute()
